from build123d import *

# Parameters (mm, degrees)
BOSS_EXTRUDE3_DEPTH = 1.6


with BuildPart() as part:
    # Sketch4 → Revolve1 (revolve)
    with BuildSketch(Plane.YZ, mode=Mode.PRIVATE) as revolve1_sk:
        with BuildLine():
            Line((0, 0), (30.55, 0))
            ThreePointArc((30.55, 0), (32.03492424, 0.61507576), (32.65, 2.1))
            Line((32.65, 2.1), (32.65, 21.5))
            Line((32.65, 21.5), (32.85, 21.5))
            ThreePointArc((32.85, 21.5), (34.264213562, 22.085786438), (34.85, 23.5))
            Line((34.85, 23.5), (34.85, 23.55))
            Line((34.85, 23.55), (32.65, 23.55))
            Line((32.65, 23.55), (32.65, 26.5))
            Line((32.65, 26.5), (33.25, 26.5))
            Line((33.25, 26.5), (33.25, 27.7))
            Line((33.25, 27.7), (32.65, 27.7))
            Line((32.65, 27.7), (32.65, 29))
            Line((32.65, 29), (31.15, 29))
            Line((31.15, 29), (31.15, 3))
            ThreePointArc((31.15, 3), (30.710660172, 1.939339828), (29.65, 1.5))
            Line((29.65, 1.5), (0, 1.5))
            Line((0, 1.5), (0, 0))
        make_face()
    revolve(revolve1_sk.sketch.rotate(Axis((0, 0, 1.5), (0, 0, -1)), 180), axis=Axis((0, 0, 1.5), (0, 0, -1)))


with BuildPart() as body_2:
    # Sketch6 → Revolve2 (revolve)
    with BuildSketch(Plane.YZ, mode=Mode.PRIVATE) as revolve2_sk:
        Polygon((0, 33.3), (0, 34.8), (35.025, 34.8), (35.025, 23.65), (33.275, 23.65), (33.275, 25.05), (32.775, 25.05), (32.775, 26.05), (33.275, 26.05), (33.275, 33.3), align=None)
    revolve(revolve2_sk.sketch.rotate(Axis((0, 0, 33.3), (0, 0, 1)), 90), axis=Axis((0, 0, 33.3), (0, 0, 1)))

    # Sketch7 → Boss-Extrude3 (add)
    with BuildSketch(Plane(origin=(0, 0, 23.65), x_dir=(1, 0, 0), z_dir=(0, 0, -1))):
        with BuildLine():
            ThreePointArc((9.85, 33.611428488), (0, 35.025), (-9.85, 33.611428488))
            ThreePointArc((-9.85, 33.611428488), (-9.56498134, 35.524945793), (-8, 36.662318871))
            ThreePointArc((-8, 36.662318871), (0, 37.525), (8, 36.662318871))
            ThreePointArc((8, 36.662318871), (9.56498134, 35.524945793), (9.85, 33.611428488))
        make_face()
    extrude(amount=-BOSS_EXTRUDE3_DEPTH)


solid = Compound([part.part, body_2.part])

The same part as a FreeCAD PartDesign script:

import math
import FreeCAD as App
import Part
import Sketcher
from FreeCAD import Vector


def add_polygon(sketch, points):
    """Adds a closed chain of lines whose ends are joined by coincident constraints."""
    first, n = sketch.GeometryCount, len(points)
    for a, b in zip(points, points[1:] + points[:1]):
        sketch.addGeometry(Part.LineSegment(App.Vector(*a, 0), App.Vector(*b, 0)), False)
    for i in range(n):
        sketch.addConstraint(Sketcher.Constraint("Coincident", first + i, 2, first + (i + 1) % n, 1))

doc = App.newDocument("Part")
body = doc.addObject("PartDesign::Body", "Body")

sketch1 = body.newObject("Sketcher::SketchObject", "Sketch")
sketch1.AttachmentSupport = (doc.getObject("YZ_Plane"), [""])
sketch1.MapMode = "FlatFace"
sketch1.addGeometry([
    Part.LineSegment(Vector(0, 0, 0), Vector(30.55, 0, 0)),
    Part.ArcOfCircle(Part.Circle(Vector(30.55, 2.1, 0), Vector(0, 0, 1), 2.1), math.radians(-90), math.radians(0)),
    Part.LineSegment(Vector(32.65, 2.1, 0), Vector(32.65, 21.5, 0)),
    Part.LineSegment(Vector(32.65, 21.5, 0), Vector(32.85, 21.5, 0)),
    Part.ArcOfCircle(Part.Circle(Vector(32.85, 23.5, 0), Vector(0, 0, 1), 2), math.radians(-90), math.radians(0)),
    Part.LineSegment(Vector(34.85, 23.5, 0), Vector(34.85, 23.55, 0)),
    Part.LineSegment(Vector(34.85, 23.55, 0), Vector(32.65, 23.55, 0)),
    Part.LineSegment(Vector(32.65, 23.55, 0), Vector(32.65, 26.5, 0)),
    Part.LineSegment(Vector(32.65, 26.5, 0), Vector(33.25, 26.5, 0)),
    Part.LineSegment(Vector(33.25, 26.5, 0), Vector(33.25, 27.7, 0)),
    Part.LineSegment(Vector(33.25, 27.7, 0), Vector(32.65, 27.7, 0)),
    Part.LineSegment(Vector(32.65, 27.7, 0), Vector(32.65, 29, 0)),
    Part.LineSegment(Vector(32.65, 29, 0), Vector(31.15, 29, 0)),
    Part.LineSegment(Vector(31.15, 29, 0), Vector(31.15, 3, 0)),
    Part.ArcOfCircle(Part.Circle(Vector(29.65, 3, 0), Vector(0, 0, 1), 1.5), math.radians(-90), math.radians(0)),
    Part.LineSegment(Vector(29.65, 1.5, 0), Vector(0, 1.5, 0)),
    Part.LineSegment(Vector(0, 1.5, 0), Vector(0, 0, 0)),
], False)
sketch1.addConstraint([
    Sketcher.Constraint("Tangent", 0, 2, 1, 1),
    Sketcher.Constraint("Tangent", 1, 2, 2, 1),
    Sketcher.Constraint("Coincident", 2, 2, 3, 1),
    Sketcher.Constraint("Tangent", 3, 2, 4, 1),
    Sketcher.Constraint("Tangent", 4, 2, 5, 1),
    Sketcher.Constraint("Coincident", 5, 2, 6, 1),
    Sketcher.Constraint("Coincident", 6, 2, 7, 1),
    Sketcher.Constraint("Coincident", 7, 2, 8, 1),
    Sketcher.Constraint("Coincident", 8, 2, 9, 1),
    Sketcher.Constraint("Coincident", 9, 2, 10, 1),
    Sketcher.Constraint("Coincident", 10, 2, 11, 1),
    Sketcher.Constraint("Coincident", 11, 2, 12, 1),
    Sketcher.Constraint("Coincident", 12, 2, 13, 1),
    Sketcher.Constraint("Tangent", 13, 2, 14, 2),
    Sketcher.Constraint("Tangent", 14, 1, 15, 1),
    Sketcher.Constraint("Coincident", 15, 2, 16, 1),
    Sketcher.Constraint("Coincident", 16, 2, 0, 1),
    Sketcher.Constraint("Horizontal", 0),
    Sketcher.Constraint("Vertical", 2),
    Sketcher.Constraint("Horizontal", 3),
    Sketcher.Constraint("Vertical", 5),
    Sketcher.Constraint("Horizontal", 6),
    Sketcher.Constraint("Vertical", 7),
    Sketcher.Constraint("Horizontal", 8),
    Sketcher.Constraint("Vertical", 9),
    Sketcher.Constraint("Horizontal", 10),
    Sketcher.Constraint("Vertical", 11),
    Sketcher.Constraint("Horizontal", 12),
    Sketcher.Constraint("Vertical", 13),
    Sketcher.Constraint("Horizontal", 15),
    Sketcher.Constraint("Vertical", 16),
    Sketcher.Constraint("Coincident", 16, 2, -1, 1),
    Sketcher.Constraint("Vertical", 2, 2, 6, 2),
    Sketcher.Constraint("Vertical", 7, 2, 10, 2),
    Sketcher.Constraint("Equal", 12, 16),
    Sketcher.Constraint("Radius", 4, 2.0),
    Sketcher.Constraint("Radius", 1, 2.1),
    Sketcher.Constraint("Radius", 14, 1.5),
    Sketcher.Constraint("DistanceY", 13, 2, 13, 1, 26.0),
    Sketcher.Constraint("DistanceX", 3, 1, 3, 2, 0.2),
    Sketcher.Constraint("DistanceX", 8, 1, 8, 2, 0.6),
    Sketcher.Constraint("DistanceX", 12, 2, 12, 1, 1.5),
    Sketcher.Constraint("DistanceY", 2, 1, 2, 2, 19.4),
    Sketcher.Constraint("DistanceY", 9, 1, 9, 2, 1.2),
    Sketcher.Constraint("DistanceY", 11, 1, 11, 2, 1.3),
    Sketcher.Constraint("DistanceX", 0, 1, 0, 2, 30.55),
    Sketcher.Constraint("DistanceY", 5, 1, 5, 2, 0.05),
])
revolution = body.newObject("PartDesign::Revolution", "Revolution")
revolution.Profile = sketch1
revolution.ReferenceAxis = (sketch1, ["V_Axis"])
revolution.Angle = 360
body2 = doc.addObject("PartDesign::Body", "Body001")

sketch2 = body2.newObject("Sketcher::SketchObject", "Sketch001")
sketch2.AttachmentSupport = (doc.getObject("YZ_Plane001"), [""])
sketch2.MapMode = "FlatFace"
add_polygon(sketch2, [(0, 34.8), (0, 33.3), (33.3, 33.3), (33.3, 26.1), (32.8, 26.1), (32.8, 25.1), (33.3, 25.1), (33.3, 23.6), (35, 23.6), (35, 34.8)])
sketch2.addConstraint([
    Sketcher.Constraint("Vertical", 0),
    Sketcher.Constraint("Horizontal", 1),
    Sketcher.Constraint("Vertical", 2),
    Sketcher.Constraint("Horizontal", 3),
    Sketcher.Constraint("Vertical", 4),
    Sketcher.Constraint("Horizontal", 5),
    Sketcher.Constraint("Vertical", 6),
    Sketcher.Constraint("Horizontal", 7),
    Sketcher.Constraint("Vertical", 8),
    Sketcher.Constraint("Horizontal", 9),
    Sketcher.Constraint("PointOnObject", 0, 2, -2),
    Sketcher.Constraint("Vertical", 2, 2, 5, 2),
    Sketcher.Constraint("DistanceY", 4, 2, 4, 1, 1.0),
    Sketcher.Constraint("DistanceX", 3, 2, 3, 1, 0.5),
    Sketcher.Constraint("DistanceY", 0, 2, 0, 1, 1.5),
    Sketcher.Constraint("DistanceY", 6, 2, 6, 1, 1.4),
    Sketcher.Constraint("DistanceX", 7, 1, 7, 2, 1.75),
    Sketcher.Constraint("DistanceY", 2, 2, 2, 1, 7.25),
    Sketcher.Constraint("DistanceY", -1, 1, 0, 2, 33.3),
    Sketcher.Constraint("DistanceX", 1, 1, 1, 2, 33.275),
])
revolution2 = body2.newObject("PartDesign::Revolution", "Revolution001")
revolution2.Profile = sketch2
revolution2.ReferenceAxis = (sketch2, ["V_Axis"])
revolution2.Angle = 360

sketch3 = body2.newObject("Sketcher::SketchObject", "Sketch002")
sketch3.AttachmentSupport = (doc.getObject("XY_Plane001"), [""])
sketch3.MapMode = "FlatFace"
sketch3.AttachmentOffset = App.Placement(Vector(0, 0, 23.65), App.Rotation())
sketch3.addGeometry([
    Part.ArcOfCircle(Part.Circle(Vector(0, 0, 0), Vector(0, 0, 1), 35), math.radians(-106), math.radians(-74)),
    Part.ArcOfCircle(Part.Circle(Vector(7.4, -34.2, 0), Vector(0, 0, 1), 2.5), math.radians(-77), math.radians(14)),
    Part.ArcOfCircle(Part.Circle(Vector(0, 0, 0), Vector(0, 0, 1), 37.5), math.radians(-102), math.radians(-78)),
    Part.ArcOfCircle(Part.Circle(Vector(-7.4, -34.2, 0), Vector(0, 0, 1), 2.5), math.radians(166), math.radians(257)),
], False)
sketch3.addConstraint([
    Sketcher.Constraint("Coincident", 0, 2, 1, 2),
    Sketcher.Constraint("Coincident", 1, 1, 2, 2),
    Sketcher.Constraint("Coincident", 2, 1, 3, 2),
    Sketcher.Constraint("Coincident", 3, 1, 0, 1),
    Sketcher.Constraint("Coincident", 0, 3, -1, 1),
    Sketcher.Constraint("Coincident", 2, 3, -1, 1),
    Sketcher.Constraint("Equal", 1, 3),
    Sketcher.Constraint("Symmetric", 1, 3, 3, 3, -2),
    Sketcher.Constraint("DistanceX", -1, 1, 1, 1, 8.0),
    Sketcher.Constraint("Radius", 0, 35.025),
    Sketcher.Constraint("Radius", 2, 37.525),
    Sketcher.Constraint("DistanceX", 3, 1, 0, 2, 19.7),
    Sketcher.Constraint("Radius", 1, 2.50036),
])
pad1 = body2.newObject("PartDesign::Pad", "Pad")
pad1.Profile = sketch3
pad1.Length = 1.6

doc.recompute()
